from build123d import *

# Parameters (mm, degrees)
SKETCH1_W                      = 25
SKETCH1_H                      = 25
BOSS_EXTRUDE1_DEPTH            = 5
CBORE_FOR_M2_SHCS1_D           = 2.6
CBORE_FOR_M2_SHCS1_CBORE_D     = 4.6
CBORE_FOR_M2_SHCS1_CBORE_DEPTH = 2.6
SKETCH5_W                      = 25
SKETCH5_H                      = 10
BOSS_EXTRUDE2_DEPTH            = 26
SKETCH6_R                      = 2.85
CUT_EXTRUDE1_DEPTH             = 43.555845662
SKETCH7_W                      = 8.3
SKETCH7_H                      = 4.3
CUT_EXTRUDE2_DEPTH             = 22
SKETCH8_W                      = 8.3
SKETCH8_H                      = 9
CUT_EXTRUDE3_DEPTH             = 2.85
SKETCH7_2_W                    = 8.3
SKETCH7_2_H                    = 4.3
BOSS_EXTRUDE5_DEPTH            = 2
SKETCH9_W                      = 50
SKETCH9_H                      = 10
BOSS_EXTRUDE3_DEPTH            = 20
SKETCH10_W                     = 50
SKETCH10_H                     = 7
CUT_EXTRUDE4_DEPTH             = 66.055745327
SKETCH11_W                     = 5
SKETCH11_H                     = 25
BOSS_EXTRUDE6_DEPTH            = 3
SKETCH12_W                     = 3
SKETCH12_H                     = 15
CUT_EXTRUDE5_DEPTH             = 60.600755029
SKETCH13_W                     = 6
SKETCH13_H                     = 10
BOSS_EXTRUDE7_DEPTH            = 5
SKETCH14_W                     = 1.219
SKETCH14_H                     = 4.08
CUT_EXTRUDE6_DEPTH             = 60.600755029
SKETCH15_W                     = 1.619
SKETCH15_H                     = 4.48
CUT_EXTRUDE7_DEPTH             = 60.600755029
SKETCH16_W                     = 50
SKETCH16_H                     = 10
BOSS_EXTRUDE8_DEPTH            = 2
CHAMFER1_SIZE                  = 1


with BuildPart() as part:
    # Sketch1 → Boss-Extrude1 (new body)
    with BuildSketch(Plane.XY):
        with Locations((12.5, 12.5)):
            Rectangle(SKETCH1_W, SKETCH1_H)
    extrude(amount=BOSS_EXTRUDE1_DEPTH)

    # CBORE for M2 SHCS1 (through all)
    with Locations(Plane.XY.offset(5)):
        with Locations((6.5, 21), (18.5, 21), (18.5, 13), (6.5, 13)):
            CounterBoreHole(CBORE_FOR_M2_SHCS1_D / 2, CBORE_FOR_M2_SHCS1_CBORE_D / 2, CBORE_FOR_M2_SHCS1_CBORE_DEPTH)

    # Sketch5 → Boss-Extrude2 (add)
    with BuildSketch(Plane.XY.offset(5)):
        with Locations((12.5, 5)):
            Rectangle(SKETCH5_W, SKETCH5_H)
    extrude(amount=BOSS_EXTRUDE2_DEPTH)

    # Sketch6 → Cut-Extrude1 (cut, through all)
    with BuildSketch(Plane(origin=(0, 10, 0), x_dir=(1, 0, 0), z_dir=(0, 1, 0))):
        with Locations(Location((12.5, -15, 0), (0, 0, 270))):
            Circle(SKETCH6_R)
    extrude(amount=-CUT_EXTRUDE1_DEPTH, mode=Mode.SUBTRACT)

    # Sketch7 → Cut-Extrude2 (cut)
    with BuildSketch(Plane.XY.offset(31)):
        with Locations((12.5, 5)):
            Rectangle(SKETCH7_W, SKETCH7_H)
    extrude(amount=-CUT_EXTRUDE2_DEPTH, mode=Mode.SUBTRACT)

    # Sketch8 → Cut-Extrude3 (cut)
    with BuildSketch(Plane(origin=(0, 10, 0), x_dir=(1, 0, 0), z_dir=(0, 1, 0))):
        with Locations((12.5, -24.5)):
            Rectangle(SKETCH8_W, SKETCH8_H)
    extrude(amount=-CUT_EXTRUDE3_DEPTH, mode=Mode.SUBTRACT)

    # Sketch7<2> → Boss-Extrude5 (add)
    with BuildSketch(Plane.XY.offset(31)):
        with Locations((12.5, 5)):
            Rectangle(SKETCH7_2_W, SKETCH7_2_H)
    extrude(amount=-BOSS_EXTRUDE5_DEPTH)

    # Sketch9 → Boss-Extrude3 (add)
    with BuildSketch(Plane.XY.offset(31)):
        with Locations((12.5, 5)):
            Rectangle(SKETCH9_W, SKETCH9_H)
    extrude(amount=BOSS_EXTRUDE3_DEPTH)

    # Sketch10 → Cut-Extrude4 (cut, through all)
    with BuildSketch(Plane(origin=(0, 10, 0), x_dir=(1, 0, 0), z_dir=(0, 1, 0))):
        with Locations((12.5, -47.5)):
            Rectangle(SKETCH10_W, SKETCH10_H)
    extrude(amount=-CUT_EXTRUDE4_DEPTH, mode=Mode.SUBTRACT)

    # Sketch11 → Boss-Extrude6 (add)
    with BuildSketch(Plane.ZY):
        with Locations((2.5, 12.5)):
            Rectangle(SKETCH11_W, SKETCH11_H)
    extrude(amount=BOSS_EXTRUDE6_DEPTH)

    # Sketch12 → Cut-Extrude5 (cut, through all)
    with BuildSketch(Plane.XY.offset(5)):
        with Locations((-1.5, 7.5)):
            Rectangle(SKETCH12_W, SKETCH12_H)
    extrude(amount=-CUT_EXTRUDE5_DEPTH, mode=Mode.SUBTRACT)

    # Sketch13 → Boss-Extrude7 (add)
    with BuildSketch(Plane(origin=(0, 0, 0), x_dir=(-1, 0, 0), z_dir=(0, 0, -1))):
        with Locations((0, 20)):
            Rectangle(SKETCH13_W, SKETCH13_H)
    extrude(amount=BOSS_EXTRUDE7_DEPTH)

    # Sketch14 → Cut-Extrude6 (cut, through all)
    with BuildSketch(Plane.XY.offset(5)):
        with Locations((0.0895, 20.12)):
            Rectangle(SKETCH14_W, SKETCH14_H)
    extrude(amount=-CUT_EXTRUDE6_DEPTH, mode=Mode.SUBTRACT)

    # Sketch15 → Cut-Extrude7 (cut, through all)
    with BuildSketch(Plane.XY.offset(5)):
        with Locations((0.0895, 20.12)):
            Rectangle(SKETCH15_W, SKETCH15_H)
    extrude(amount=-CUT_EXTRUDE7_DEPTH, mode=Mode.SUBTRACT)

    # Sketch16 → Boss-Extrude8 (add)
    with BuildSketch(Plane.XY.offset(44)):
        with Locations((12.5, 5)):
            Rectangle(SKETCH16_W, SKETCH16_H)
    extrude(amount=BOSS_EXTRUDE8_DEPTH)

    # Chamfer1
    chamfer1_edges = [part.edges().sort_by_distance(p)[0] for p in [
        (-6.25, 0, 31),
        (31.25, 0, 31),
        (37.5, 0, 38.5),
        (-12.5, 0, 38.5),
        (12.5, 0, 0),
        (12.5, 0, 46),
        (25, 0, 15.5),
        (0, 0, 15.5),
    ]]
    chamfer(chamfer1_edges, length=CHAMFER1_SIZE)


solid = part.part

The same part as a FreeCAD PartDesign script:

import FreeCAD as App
import Part
import Sketcher
Q = App.Units.Quantity


def edges_at(feature, points):
    """Names of the edges that pass closest to the given points."""
    edges = feature.Shape.Edges
    near = lambda p: min(range(len(edges)), key=lambda i: edges[i].distToShape(Part.Vertex(*p))[0])
    return sorted({f"Edge{near(p) + 1}" for p in points})


def add_polygon(sketch, points):
    """Adds a closed chain of lines whose ends are joined by coincident constraints."""
    first, n = sketch.GeometryCount, len(points)
    for a, b in zip(points, points[1:] + points[:1]):
        sketch.addGeometry(Part.LineSegment(App.Vector(*a, 0), App.Vector(*b, 0)), False)
    for i in range(n):
        sketch.addConstraint(Sketcher.Constraint("Coincident", first + i, 2, first + (i + 1) % n, 1))

doc = App.newDocument("Part")
params = doc.addObject("Spreadsheet::Sheet", "Params")
for row, (alias, value) in enumerate([
    ("sketch1_width", "25 mm"),
    ("pad1_length", "5 mm"),
    ("sketch2_diameter", "2.6 mm"),
    ("hole_diameter", "2.6 mm"),
    ("hole_cbore_diameter", "4.6 mm"),
    ("hole_cbore_depth", "2.6 mm"),
    ("sketch3_width", "25 mm"),
    ("sketch3_height", "10 mm"),
    ("pad2_length", "26 mm"),
    ("sketch4_diameter", "5.7 mm"),
    ("sketch5_width", "8.3 mm"),
    ("sketch5_height", "4.3 mm"),
    ("pocket2_length", "22 mm"),
    ("sketch6_height", "9 mm"),
    ("sketch6_width", "8.3 mm"),
    ("pocket3_length", "2.85 mm"),
    ("sketch7_width", "8.3 mm"),
    ("sketch7_height", "4.3 mm"),
    ("pad3_length", "2 mm"),
    ("sketch8_width", "50 mm"),
    ("sketch8_height", "10 mm"),
    ("pad4_length", "20 mm"),
    ("sketch9_width", "50 mm"),
    ("sketch9_height", "7 mm"),
    ("sketch10_width", "25 mm"),
    ("sketch10_height", "5 mm"),
    ("pad5_length", "3 mm"),
    ("sketch11_width", "3 mm"),
    ("sketch11_height", "15 mm"),
    ("sketch12_width", "6 mm"),
    ("sketch12_height", "10 mm"),
    ("pad6_length", "5 mm"),
    ("sketch13_height", "4.08 mm"),
    ("sketch14_height", "4.48 mm"),
    ("sketch15_width", "50 mm"),
    ("sketch15_height", "10 mm"),
    ("pad7_length", "2 mm"),
    ("chamfer_size", "1 mm"),
], start=1):
    params.set(f"A{row}", alias)
    params.set(f"B{row}", "=" + value)
    params.setAlias(f"B{row}", alias)

body = doc.addObject("PartDesign::Body", "Body")

sketch1 = body.newObject("Sketcher::SketchObject", "Sketch")
sketch1.AttachmentSupport = (doc.getObject("XY_Plane"), [""])
sketch1.MapMode = "FlatFace"
add_polygon(sketch1, [(0, 25), (0, 0), (25, 0), (25, 25)])
sketch1.addConstraint(Sketcher.Constraint("Vertical", 0))
sketch1.addConstraint(Sketcher.Constraint("Horizontal", 1))
sketch1.addConstraint(Sketcher.Constraint("Vertical", 2))
sketch1.addConstraint(Sketcher.Constraint("Horizontal", 3))
sketch1.addConstraint(Sketcher.Constraint("Coincident", 0, 2, -1, 1))
sketch1.addConstraint(Sketcher.Constraint("Equal", 3, 0))
sketch1.addConstraint(Sketcher.Constraint("DistanceX", 1, 1, 1, 2, Q("25 mm")))
sketch1.setExpression("Constraints[10]", "Params.sketch1_width")
pad1 = body.newObject("PartDesign::Pad", "Pad")
pad1.Profile = sketch1
pad1.setExpression("Length", "Params.pad1_length")

sketch2 = body.newObject("Sketcher::SketchObject", "Sketch001")
sketch2.AttachmentSupport = (doc.getObject("XY_Plane"), [""])
sketch2.MapMode = "FlatFace"
sketch2.AttachmentOffset = App.Placement(App.Vector(0, 0, 5), App.Rotation())
sketch2.addGeometry(Part.Circle(App.Vector(6.5, 21, 0), App.Vector(0, 0, 1), 1.3), False)
sketch2.addGeometry(Part.Circle(App.Vector(18.5, 21, 0), App.Vector(0, 0, 1), 1.3), False)
sketch2.addGeometry(Part.Circle(App.Vector(18.5, 13, 0), App.Vector(0, 0, 1), 1.3), False)
sketch2.addGeometry(Part.Circle(App.Vector(6.5, 13, 0), App.Vector(0, 0, 1), 1.3), False)
sketch2.addConstraint(Sketcher.Constraint("Equal", 0, 1))
sketch2.addConstraint(Sketcher.Constraint("Equal", 1, 2))
sketch2.addConstraint(Sketcher.Constraint("Equal", 2, 3))
sketch2.addConstraint(Sketcher.Constraint("Horizontal", 0, 3, 1, 3))
sketch2.addConstraint(Sketcher.Constraint("Horizontal", 2, 3, 3, 3))
sketch2.addConstraint(Sketcher.Constraint("Vertical", 1, 3, 2, 3))
sketch2.addConstraint(Sketcher.Constraint("Vertical", 0, 3, 3, 3))
sketch2.addConstraint(Sketcher.Constraint("Diameter", 0, Q("2.6 mm")))
sketch2.addConstraint(Sketcher.Constraint("DistanceY", -1, 1, 0, 3, Q("21 mm")))
sketch2.addConstraint(Sketcher.Constraint("DistanceY", -1, 1, 2, 3, Q("13 mm")))
sketch2.addConstraint(Sketcher.Constraint("DistanceX", 0, 3, 1, 3, Q("12 mm")))
sketch2.addConstraint(Sketcher.Constraint("DistanceX", -1, 1, 0, 3, Q("6.5 mm")))
sketch2.setExpression("Constraints[7]", "Params.sketch2_diameter")
doc.recompute()
hole = body.newObject("PartDesign::Hole", "Hole")
hole.Profile = sketch2
hole.ThreadType = "None"
hole.setExpression("Diameter", "Params.hole_diameter")
hole.DepthType = "ThroughAll"
hole.HoleCutType = "Counterbore"
hole.setExpression("HoleCutDiameter", "Params.hole_cbore_diameter")
hole.setExpression("HoleCutDepth", "Params.hole_cbore_depth")

sketch3 = body.newObject("Sketcher::SketchObject", "Sketch002")
sketch3.AttachmentSupport = (doc.getObject("XY_Plane"), [""])
sketch3.MapMode = "FlatFace"
sketch3.AttachmentOffset = App.Placement(App.Vector(0, 0, 5), App.Rotation())
add_polygon(sketch3, [(0, 10), (0, 0), (25, 0), (25, 10)])
sketch3.addConstraint(Sketcher.Constraint("Vertical", 0))
sketch3.addConstraint(Sketcher.Constraint("Horizontal", 1))
sketch3.addConstraint(Sketcher.Constraint("Vertical", 2))
sketch3.addConstraint(Sketcher.Constraint("Horizontal", 3))
sketch3.addConstraint(Sketcher.Constraint("Coincident", 0, 2, -1, 1))
sketch3.addConstraint(Sketcher.Constraint("DistanceX", 1, 1, 1, 2, Q("25 mm")))
sketch3.addConstraint(Sketcher.Constraint("DistanceY", 0, 2, 0, 1, Q("10 mm")))
sketch3.setExpression("Constraints[9]", "Params.sketch3_width")
sketch3.setExpression("Constraints[10]", "Params.sketch3_height")
pad2 = body.newObject("PartDesign::Pad", "Pad001")
pad2.Profile = sketch3
pad2.setExpression("Length", "Params.pad2_length")

sketch4 = body.newObject("Sketcher::SketchObject", "Sketch003")
sketch4.AttachmentSupport = (doc.getObject("XZ_Plane"), [""])
sketch4.MapMode = "FlatFace"
sketch4.AttachmentOffset = App.Placement(App.Vector(0, 0, -10), App.Rotation())
sketch4.addGeometry(Part.Circle(App.Vector(12.5, 15, 0), App.Vector(0, 0, 1), 2.9), False)
sketch4.addConstraint(Sketcher.Constraint("Diameter", 0, Q("5.7 mm")))
sketch4.addConstraint(Sketcher.Constraint("DistanceY", -1, 1, 0, 3, Q("15 mm")))
sketch4.addConstraint(Sketcher.Constraint("DistanceX", -1, 1, 0, 3, Q("12.5 mm")))
sketch4.setExpression("Constraints[0]", "Params.sketch4_diameter")
pocket1 = body.newObject("PartDesign::Pocket", "Pocket")
pocket1.Profile = sketch4
pocket1.Type = "ThroughAll"
pocket1.Reversed = True

sketch5 = body.newObject("Sketcher::SketchObject", "Sketch004")
sketch5.AttachmentSupport = (doc.getObject("XY_Plane"), [""])
sketch5.MapMode = "FlatFace"
sketch5.AttachmentOffset = App.Placement(App.Vector(0, 0, 31), App.Rotation())
add_polygon(sketch5, [(8.3, 7.2), (8.3, 2.9), (16.6, 2.9), (16.6, 7.2)])
sketch5.addConstraint(Sketcher.Constraint("Vertical", 0))
sketch5.addConstraint(Sketcher.Constraint("Horizontal", 1))
sketch5.addConstraint(Sketcher.Constraint("Vertical", 2))
sketch5.addConstraint(Sketcher.Constraint("Horizontal", 3))
sketch5.addConstraint(Sketcher.Constraint("DistanceX", 1, 1, 1, 2, Q("8.3 mm")))
sketch5.addConstraint(Sketcher.Constraint("DistanceY", 0, 2, 0, 1, Q("4.3 mm")))
sketch5.addConstraint(Sketcher.Constraint("DistanceX", -1, 1, 0, 2, Q("8.35 mm")))
sketch5.addConstraint(Sketcher.Constraint("DistanceY", -1, 1, 0, 2, Q("2.85 mm")))
sketch5.setExpression("Constraints[8]", "Params.sketch5_width")
sketch5.setExpression("Constraints[9]", "Params.sketch5_height")
pocket2 = body.newObject("PartDesign::Pocket", "Pocket001")
pocket2.Profile = sketch5
pocket2.setExpression("Length", "Params.pocket2_length")

sketch6 = body.newObject("Sketcher::SketchObject", "Sketch005")
sketch6.AttachmentSupport = (doc.getObject("XZ_Plane"), [""])
sketch6.MapMode = "FlatFace"
sketch6.AttachmentOffset = App.Placement(App.Vector(0, 0, -10), App.Rotation())
add_polygon(sketch6, [(8, 20), (8, 29), (17, 29), (17, 20)])
sketch6.addConstraint(Sketcher.Constraint("Vertical", 0))
sketch6.addConstraint(Sketcher.Constraint("Horizontal", 1))
sketch6.addConstraint(Sketcher.Constraint("Vertical", 2))
sketch6.addConstraint(Sketcher.Constraint("Horizontal", 3))
sketch6.addConstraint(Sketcher.Constraint("DistanceY", 0, 1, 0, 2, Q("9 mm")))
sketch6.addConstraint(Sketcher.Constraint("DistanceX", 1, 1, 1, 2, Q("8.3 mm")))
sketch6.addConstraint(Sketcher.Constraint("DistanceY", -1, 1, 0, 2, Q("29 mm")))
sketch6.addConstraint(Sketcher.Constraint("DistanceX", -1, 1, 0, 2, Q("8.35 mm")))
sketch6.setExpression("Constraints[8]", "Params.sketch6_height")
sketch6.setExpression("Constraints[9]", "Params.sketch6_width")
pocket3 = body.newObject("PartDesign::Pocket", "Pocket002")
pocket3.Profile = sketch6
pocket3.setExpression("Length", "Params.pocket3_length")
pocket3.Reversed = True

sketch7 = body.newObject("Sketcher::SketchObject", "Sketch006")
sketch7.AttachmentSupport = (doc.getObject("XY_Plane"), [""])
sketch7.MapMode = "FlatFace"
sketch7.AttachmentOffset = App.Placement(App.Vector(0, 0, 31), App.Rotation())
add_polygon(sketch7, [(8.3, 7.2), (8.3, 2.9), (16.6, 2.9), (16.6, 7.2)])
sketch7.addConstraint(Sketcher.Constraint("Vertical", 0))
sketch7.addConstraint(Sketcher.Constraint("Horizontal", 1))
sketch7.addConstraint(Sketcher.Constraint("Vertical", 2))
sketch7.addConstraint(Sketcher.Constraint("Horizontal", 3))
sketch7.addConstraint(Sketcher.Constraint("DistanceX", 1, 1, 1, 2, Q("8.3 mm")))
sketch7.addConstraint(Sketcher.Constraint("DistanceY", 0, 2, 0, 1, Q("4.3 mm")))
sketch7.addConstraint(Sketcher.Constraint("DistanceX", -1, 1, 0, 2, Q("8.35 mm")))
sketch7.addConstraint(Sketcher.Constraint("DistanceY", -1, 1, 0, 2, Q("2.85 mm")))
sketch7.setExpression("Constraints[8]", "Params.sketch7_width")
sketch7.setExpression("Constraints[9]", "Params.sketch7_height")
pad3 = body.newObject("PartDesign::Pad", "Pad002")
pad3.Profile = sketch7
pad3.setExpression("Length", "Params.pad3_length")
pad3.Reversed = True

sketch8 = body.newObject("Sketcher::SketchObject", "Sketch007")
sketch8.AttachmentSupport = (doc.getObject("XY_Plane"), [""])
sketch8.MapMode = "FlatFace"
sketch8.AttachmentOffset = App.Placement(App.Vector(0, 0, 31), App.Rotation())
add_polygon(sketch8, [(-12, 10), (-12, 0), (38, 0), (38, 10)])
sketch8.addConstraint(Sketcher.Constraint("Vertical", 0))
sketch8.addConstraint(Sketcher.Constraint("Horizontal", 1))
sketch8.addConstraint(Sketcher.Constraint("Vertical", 2))
sketch8.addConstraint(Sketcher.Constraint("Horizontal", 3))
sketch8.addConstraint(Sketcher.Constraint("PointOnObject", 0, 2, -1))
sketch8.addConstraint(Sketcher.Constraint("DistanceX", 1, 1, 1, 2, Q("50 mm")))
sketch8.addConstraint(Sketcher.Constraint("DistanceY", 0, 2, 0, 1, Q("10 mm")))
sketch8.addConstraint(Sketcher.Constraint("DistanceX", 0, 2, -1, 1, Q("12.5 mm")))
sketch8.setExpression("Constraints[9]", "Params.sketch8_width")
sketch8.setExpression("Constraints[10]", "Params.sketch8_height")
pad4 = body.newObject("PartDesign::Pad", "Pad003")
pad4.Profile = sketch8
pad4.setExpression("Length", "Params.pad4_length")

sketch9 = body.newObject("Sketcher::SketchObject", "Sketch008")
sketch9.AttachmentSupport = (doc.getObject("XZ_Plane"), [""])
sketch9.MapMode = "FlatFace"
sketch9.AttachmentOffset = App.Placement(App.Vector(0, 0, -10), App.Rotation())
add_polygon(sketch9, [(-12, 44), (-12, 51), (38, 51), (38, 44)])
sketch9.addConstraint(Sketcher.Constraint("Vertical", 0))
sketch9.addConstraint(Sketcher.Constraint("Horizontal", 1))
sketch9.addConstraint(Sketcher.Constraint("Vertical", 2))
sketch9.addConstraint(Sketcher.Constraint("Horizontal", 3))
sketch9.addConstraint(Sketcher.Constraint("DistanceX", 1, 1, 1, 2, Q("50 mm")))
sketch9.addConstraint(Sketcher.Constraint("DistanceY", 0, 1, 0, 2, Q("7 mm")))
sketch9.addConstraint(Sketcher.Constraint("DistanceY", -1, 1, 0, 2, Q("51 mm")))
sketch9.addConstraint(Sketcher.Constraint("DistanceX", 0, 2, -1, 1, Q("12.5 mm")))
sketch9.setExpression("Constraints[8]", "Params.sketch9_width")
sketch9.setExpression("Constraints[9]", "Params.sketch9_height")
pocket4 = body.newObject("PartDesign::Pocket", "Pocket003")
pocket4.Profile = sketch9
pocket4.Type = "ThroughAll"
pocket4.Reversed = True

sketch10 = body.newObject("Sketcher::SketchObject", "Sketch009")
sketch10.AttachmentSupport = (doc.getObject("YZ_Plane"), [""])
sketch10.MapMode = "FlatFace"
add_polygon(sketch10, [(25, 0), (0, 0), (0, 5), (25, 5)])
sketch10.addConstraint(Sketcher.Constraint("Horizontal", 0))
sketch10.addConstraint(Sketcher.Constraint("Vertical", 1))
sketch10.addConstraint(Sketcher.Constraint("Horizontal", 2))
sketch10.addConstraint(Sketcher.Constraint("Vertical", 3))
sketch10.addConstraint(Sketcher.Constraint("Coincident", 0, 2, -1, 1))
sketch10.addConstraint(Sketcher.Constraint("DistanceX", 0, 2, 0, 1, Q("25 mm")))
sketch10.addConstraint(Sketcher.Constraint("DistanceY", 1, 1, 1, 2, Q("5 mm")))
sketch10.setExpression("Constraints[9]", "Params.sketch10_width")
sketch10.setExpression("Constraints[10]", "Params.sketch10_height")
pad5 = body.newObject("PartDesign::Pad", "Pad004")
pad5.Profile = sketch10
pad5.setExpression("Length", "Params.pad5_length")
pad5.Reversed = True

sketch11 = body.newObject("Sketcher::SketchObject", "Sketch010")
sketch11.AttachmentSupport = (doc.getObject("XY_Plane"), [""])
sketch11.MapMode = "FlatFace"
sketch11.AttachmentOffset = App.Placement(App.Vector(0, 0, 5), App.Rotation())
add_polygon(sketch11, [(-3, 15), (-3, 0), (0, 0), (0, 15)])
sketch11.addConstraint(Sketcher.Constraint("Vertical", 0))
sketch11.addConstraint(Sketcher.Constraint("Horizontal", 1))
sketch11.addConstraint(Sketcher.Constraint("Vertical", 2))
sketch11.addConstraint(Sketcher.Constraint("Horizontal", 3))
sketch11.addConstraint(Sketcher.Constraint("Coincident", 1, 2, -1, 1))
sketch11.addConstraint(Sketcher.Constraint("DistanceX", 1, 1, 1, 2, Q("3 mm")))
sketch11.addConstraint(Sketcher.Constraint("DistanceY", 0, 2, 0, 1, Q("15 mm")))
sketch11.setExpression("Constraints[9]", "Params.sketch11_width")
sketch11.setExpression("Constraints[10]", "Params.sketch11_height")
pocket5 = body.newObject("PartDesign::Pocket", "Pocket004")
pocket5.Profile = sketch11
pocket5.Type = "ThroughAll"

sketch12 = body.newObject("Sketcher::SketchObject", "Sketch011")
sketch12.AttachmentSupport = (doc.getObject("XY_Plane"), [""])
sketch12.MapMode = "FlatFace"
add_polygon(sketch12, [(3, 25), (3, 15), (-3, 15), (-3, 25)])
sketch12.addConstraint(Sketcher.Constraint("Vertical", 0))
sketch12.addConstraint(Sketcher.Constraint("Horizontal", 1))
sketch12.addConstraint(Sketcher.Constraint("Vertical", 2))
sketch12.addConstraint(Sketcher.Constraint("Horizontal", 3))
sketch12.addConstraint(Sketcher.Constraint("DistanceX", 1, 2, 1, 1, Q("6 mm")))
sketch12.addConstraint(Sketcher.Constraint("DistanceY", 0, 2, 0, 1, Q("10 mm")))
sketch12.addConstraint(Sketcher.Constraint("DistanceX", -1, 1, 0, 2, Q("3 mm")))
sketch12.addConstraint(Sketcher.Constraint("DistanceY", -1, 1, 0, 2, Q("15 mm")))
sketch12.setExpression("Constraints[8]", "Params.sketch12_width")
sketch12.setExpression("Constraints[9]", "Params.sketch12_height")
pad6 = body.newObject("PartDesign::Pad", "Pad005")
pad6.Profile = sketch12
pad6.setExpression("Length", "Params.pad6_length")
pad6.Reversed = True

sketch13 = body.newObject("Sketcher::SketchObject", "Sketch012")
sketch13.AttachmentSupport = (doc.getObject("XY_Plane"), [""])
sketch13.MapMode = "FlatFace"
sketch13.AttachmentOffset = App.Placement(App.Vector(0, 0, 5), App.Rotation())
add_polygon(sketch13, [(-0.5, 22.2), (-0.5, 18.1), (0.7, 18.1), (0.7, 22.2)])
sketch13.addConstraint(Sketcher.Constraint("Vertical", 0))
sketch13.addConstraint(Sketcher.Constraint("Horizontal", 1))
sketch13.addConstraint(Sketcher.Constraint("Vertical", 2))
sketch13.addConstraint(Sketcher.Constraint("Horizontal", 3))
sketch13.addConstraint(Sketcher.Constraint("DistanceY", 0, 2, 0, 1, Q("4.08 mm")))
sketch13.addConstraint(Sketcher.Constraint("DistanceX", 1, 1, 1, 2, Q("1.219 mm")))
sketch13.addConstraint(Sketcher.Constraint("DistanceX", 0, 2, -1, 1, Q("0.52 mm")))
sketch13.addConstraint(Sketcher.Constraint("DistanceY", -1, 1, 0, 2, Q("18.08 mm")))
sketch13.setExpression("Constraints[8]", "Params.sketch13_height")
pocket6 = body.newObject("PartDesign::Pocket", "Pocket005")
pocket6.Profile = sketch13
pocket6.Type = "ThroughAll"

sketch14 = body.newObject("Sketcher::SketchObject", "Sketch013")
sketch14.AttachmentSupport = (doc.getObject("XY_Plane"), [""])
sketch14.MapMode = "FlatFace"
sketch14.AttachmentOffset = App.Placement(App.Vector(0, 0, 5), App.Rotation())
add_polygon(sketch14, [(-0.7, 22.4), (-0.7, 17.9), (0.9, 17.9), (0.9, 22.4)])
sketch14.addConstraint(Sketcher.Constraint("Vertical", 0))
sketch14.addConstraint(Sketcher.Constraint("Horizontal", 1))
sketch14.addConstraint(Sketcher.Constraint("Vertical", 2))
sketch14.addConstraint(Sketcher.Constraint("Horizontal", 3))
sketch14.addConstraint(Sketcher.Constraint("DistanceY", 0, 2, 0, 1, Q("4.48 mm")))
sketch14.addConstraint(Sketcher.Constraint("DistanceX", 1, 1, 1, 2, Q("1.619 mm")))
sketch14.addConstraint(Sketcher.Constraint("DistanceX", 0, 2, -1, 1, Q("0.72 mm")))
sketch14.addConstraint(Sketcher.Constraint("DistanceY", -1, 1, 0, 2, Q("17.88 mm")))
sketch14.setExpression("Constraints[8]", "Params.sketch14_height")
pocket7 = body.newObject("PartDesign::Pocket", "Pocket006")
pocket7.Profile = sketch14
pocket7.Type = "ThroughAll"

sketch15 = body.newObject("Sketcher::SketchObject", "Sketch014")
sketch15.AttachmentSupport = (doc.getObject("XY_Plane"), [""])
sketch15.MapMode = "FlatFace"
sketch15.AttachmentOffset = App.Placement(App.Vector(0, 0, 44), App.Rotation())
add_polygon(sketch15, [(-12, 10), (-12, 0), (38, 0), (38, 10)])
sketch15.addConstraint(Sketcher.Constraint("Vertical", 0))
sketch15.addConstraint(Sketcher.Constraint("Horizontal", 1))
sketch15.addConstraint(Sketcher.Constraint("Vertical", 2))
sketch15.addConstraint(Sketcher.Constraint("Horizontal", 3))
sketch15.addConstraint(Sketcher.Constraint("PointOnObject", 0, 2, -1))
sketch15.addConstraint(Sketcher.Constraint("DistanceX", 1, 1, 1, 2, Q("50 mm")))
sketch15.addConstraint(Sketcher.Constraint("DistanceY", 0, 2, 0, 1, Q("10 mm")))
sketch15.addConstraint(Sketcher.Constraint("DistanceX", 0, 2, -1, 1, Q("12.5 mm")))
sketch15.setExpression("Constraints[9]", "Params.sketch15_width")
sketch15.setExpression("Constraints[10]", "Params.sketch15_height")
pad7 = body.newObject("PartDesign::Pad", "Pad006")
pad7.Profile = sketch15
pad7.setExpression("Length", "Params.pad7_length")
doc.recompute()

chamfer = body.newObject("PartDesign::Chamfer", "Chamfer")
chamfer.Base = (pad7, edges_at(pad7, [
    (-6.25, 0, 31),
    (31.25, 0, 31),
    (37.5, 0, 38.5),
    (-12.5, 0, 38.5),
    (12.5, 0, 0),
    (12.5, 0, 46),
    (25, 0, 15.5),
    (0, 0, 15.5),
]))
chamfer.setExpression("Size", "Params.chamfer_size")

doc.recompute()
